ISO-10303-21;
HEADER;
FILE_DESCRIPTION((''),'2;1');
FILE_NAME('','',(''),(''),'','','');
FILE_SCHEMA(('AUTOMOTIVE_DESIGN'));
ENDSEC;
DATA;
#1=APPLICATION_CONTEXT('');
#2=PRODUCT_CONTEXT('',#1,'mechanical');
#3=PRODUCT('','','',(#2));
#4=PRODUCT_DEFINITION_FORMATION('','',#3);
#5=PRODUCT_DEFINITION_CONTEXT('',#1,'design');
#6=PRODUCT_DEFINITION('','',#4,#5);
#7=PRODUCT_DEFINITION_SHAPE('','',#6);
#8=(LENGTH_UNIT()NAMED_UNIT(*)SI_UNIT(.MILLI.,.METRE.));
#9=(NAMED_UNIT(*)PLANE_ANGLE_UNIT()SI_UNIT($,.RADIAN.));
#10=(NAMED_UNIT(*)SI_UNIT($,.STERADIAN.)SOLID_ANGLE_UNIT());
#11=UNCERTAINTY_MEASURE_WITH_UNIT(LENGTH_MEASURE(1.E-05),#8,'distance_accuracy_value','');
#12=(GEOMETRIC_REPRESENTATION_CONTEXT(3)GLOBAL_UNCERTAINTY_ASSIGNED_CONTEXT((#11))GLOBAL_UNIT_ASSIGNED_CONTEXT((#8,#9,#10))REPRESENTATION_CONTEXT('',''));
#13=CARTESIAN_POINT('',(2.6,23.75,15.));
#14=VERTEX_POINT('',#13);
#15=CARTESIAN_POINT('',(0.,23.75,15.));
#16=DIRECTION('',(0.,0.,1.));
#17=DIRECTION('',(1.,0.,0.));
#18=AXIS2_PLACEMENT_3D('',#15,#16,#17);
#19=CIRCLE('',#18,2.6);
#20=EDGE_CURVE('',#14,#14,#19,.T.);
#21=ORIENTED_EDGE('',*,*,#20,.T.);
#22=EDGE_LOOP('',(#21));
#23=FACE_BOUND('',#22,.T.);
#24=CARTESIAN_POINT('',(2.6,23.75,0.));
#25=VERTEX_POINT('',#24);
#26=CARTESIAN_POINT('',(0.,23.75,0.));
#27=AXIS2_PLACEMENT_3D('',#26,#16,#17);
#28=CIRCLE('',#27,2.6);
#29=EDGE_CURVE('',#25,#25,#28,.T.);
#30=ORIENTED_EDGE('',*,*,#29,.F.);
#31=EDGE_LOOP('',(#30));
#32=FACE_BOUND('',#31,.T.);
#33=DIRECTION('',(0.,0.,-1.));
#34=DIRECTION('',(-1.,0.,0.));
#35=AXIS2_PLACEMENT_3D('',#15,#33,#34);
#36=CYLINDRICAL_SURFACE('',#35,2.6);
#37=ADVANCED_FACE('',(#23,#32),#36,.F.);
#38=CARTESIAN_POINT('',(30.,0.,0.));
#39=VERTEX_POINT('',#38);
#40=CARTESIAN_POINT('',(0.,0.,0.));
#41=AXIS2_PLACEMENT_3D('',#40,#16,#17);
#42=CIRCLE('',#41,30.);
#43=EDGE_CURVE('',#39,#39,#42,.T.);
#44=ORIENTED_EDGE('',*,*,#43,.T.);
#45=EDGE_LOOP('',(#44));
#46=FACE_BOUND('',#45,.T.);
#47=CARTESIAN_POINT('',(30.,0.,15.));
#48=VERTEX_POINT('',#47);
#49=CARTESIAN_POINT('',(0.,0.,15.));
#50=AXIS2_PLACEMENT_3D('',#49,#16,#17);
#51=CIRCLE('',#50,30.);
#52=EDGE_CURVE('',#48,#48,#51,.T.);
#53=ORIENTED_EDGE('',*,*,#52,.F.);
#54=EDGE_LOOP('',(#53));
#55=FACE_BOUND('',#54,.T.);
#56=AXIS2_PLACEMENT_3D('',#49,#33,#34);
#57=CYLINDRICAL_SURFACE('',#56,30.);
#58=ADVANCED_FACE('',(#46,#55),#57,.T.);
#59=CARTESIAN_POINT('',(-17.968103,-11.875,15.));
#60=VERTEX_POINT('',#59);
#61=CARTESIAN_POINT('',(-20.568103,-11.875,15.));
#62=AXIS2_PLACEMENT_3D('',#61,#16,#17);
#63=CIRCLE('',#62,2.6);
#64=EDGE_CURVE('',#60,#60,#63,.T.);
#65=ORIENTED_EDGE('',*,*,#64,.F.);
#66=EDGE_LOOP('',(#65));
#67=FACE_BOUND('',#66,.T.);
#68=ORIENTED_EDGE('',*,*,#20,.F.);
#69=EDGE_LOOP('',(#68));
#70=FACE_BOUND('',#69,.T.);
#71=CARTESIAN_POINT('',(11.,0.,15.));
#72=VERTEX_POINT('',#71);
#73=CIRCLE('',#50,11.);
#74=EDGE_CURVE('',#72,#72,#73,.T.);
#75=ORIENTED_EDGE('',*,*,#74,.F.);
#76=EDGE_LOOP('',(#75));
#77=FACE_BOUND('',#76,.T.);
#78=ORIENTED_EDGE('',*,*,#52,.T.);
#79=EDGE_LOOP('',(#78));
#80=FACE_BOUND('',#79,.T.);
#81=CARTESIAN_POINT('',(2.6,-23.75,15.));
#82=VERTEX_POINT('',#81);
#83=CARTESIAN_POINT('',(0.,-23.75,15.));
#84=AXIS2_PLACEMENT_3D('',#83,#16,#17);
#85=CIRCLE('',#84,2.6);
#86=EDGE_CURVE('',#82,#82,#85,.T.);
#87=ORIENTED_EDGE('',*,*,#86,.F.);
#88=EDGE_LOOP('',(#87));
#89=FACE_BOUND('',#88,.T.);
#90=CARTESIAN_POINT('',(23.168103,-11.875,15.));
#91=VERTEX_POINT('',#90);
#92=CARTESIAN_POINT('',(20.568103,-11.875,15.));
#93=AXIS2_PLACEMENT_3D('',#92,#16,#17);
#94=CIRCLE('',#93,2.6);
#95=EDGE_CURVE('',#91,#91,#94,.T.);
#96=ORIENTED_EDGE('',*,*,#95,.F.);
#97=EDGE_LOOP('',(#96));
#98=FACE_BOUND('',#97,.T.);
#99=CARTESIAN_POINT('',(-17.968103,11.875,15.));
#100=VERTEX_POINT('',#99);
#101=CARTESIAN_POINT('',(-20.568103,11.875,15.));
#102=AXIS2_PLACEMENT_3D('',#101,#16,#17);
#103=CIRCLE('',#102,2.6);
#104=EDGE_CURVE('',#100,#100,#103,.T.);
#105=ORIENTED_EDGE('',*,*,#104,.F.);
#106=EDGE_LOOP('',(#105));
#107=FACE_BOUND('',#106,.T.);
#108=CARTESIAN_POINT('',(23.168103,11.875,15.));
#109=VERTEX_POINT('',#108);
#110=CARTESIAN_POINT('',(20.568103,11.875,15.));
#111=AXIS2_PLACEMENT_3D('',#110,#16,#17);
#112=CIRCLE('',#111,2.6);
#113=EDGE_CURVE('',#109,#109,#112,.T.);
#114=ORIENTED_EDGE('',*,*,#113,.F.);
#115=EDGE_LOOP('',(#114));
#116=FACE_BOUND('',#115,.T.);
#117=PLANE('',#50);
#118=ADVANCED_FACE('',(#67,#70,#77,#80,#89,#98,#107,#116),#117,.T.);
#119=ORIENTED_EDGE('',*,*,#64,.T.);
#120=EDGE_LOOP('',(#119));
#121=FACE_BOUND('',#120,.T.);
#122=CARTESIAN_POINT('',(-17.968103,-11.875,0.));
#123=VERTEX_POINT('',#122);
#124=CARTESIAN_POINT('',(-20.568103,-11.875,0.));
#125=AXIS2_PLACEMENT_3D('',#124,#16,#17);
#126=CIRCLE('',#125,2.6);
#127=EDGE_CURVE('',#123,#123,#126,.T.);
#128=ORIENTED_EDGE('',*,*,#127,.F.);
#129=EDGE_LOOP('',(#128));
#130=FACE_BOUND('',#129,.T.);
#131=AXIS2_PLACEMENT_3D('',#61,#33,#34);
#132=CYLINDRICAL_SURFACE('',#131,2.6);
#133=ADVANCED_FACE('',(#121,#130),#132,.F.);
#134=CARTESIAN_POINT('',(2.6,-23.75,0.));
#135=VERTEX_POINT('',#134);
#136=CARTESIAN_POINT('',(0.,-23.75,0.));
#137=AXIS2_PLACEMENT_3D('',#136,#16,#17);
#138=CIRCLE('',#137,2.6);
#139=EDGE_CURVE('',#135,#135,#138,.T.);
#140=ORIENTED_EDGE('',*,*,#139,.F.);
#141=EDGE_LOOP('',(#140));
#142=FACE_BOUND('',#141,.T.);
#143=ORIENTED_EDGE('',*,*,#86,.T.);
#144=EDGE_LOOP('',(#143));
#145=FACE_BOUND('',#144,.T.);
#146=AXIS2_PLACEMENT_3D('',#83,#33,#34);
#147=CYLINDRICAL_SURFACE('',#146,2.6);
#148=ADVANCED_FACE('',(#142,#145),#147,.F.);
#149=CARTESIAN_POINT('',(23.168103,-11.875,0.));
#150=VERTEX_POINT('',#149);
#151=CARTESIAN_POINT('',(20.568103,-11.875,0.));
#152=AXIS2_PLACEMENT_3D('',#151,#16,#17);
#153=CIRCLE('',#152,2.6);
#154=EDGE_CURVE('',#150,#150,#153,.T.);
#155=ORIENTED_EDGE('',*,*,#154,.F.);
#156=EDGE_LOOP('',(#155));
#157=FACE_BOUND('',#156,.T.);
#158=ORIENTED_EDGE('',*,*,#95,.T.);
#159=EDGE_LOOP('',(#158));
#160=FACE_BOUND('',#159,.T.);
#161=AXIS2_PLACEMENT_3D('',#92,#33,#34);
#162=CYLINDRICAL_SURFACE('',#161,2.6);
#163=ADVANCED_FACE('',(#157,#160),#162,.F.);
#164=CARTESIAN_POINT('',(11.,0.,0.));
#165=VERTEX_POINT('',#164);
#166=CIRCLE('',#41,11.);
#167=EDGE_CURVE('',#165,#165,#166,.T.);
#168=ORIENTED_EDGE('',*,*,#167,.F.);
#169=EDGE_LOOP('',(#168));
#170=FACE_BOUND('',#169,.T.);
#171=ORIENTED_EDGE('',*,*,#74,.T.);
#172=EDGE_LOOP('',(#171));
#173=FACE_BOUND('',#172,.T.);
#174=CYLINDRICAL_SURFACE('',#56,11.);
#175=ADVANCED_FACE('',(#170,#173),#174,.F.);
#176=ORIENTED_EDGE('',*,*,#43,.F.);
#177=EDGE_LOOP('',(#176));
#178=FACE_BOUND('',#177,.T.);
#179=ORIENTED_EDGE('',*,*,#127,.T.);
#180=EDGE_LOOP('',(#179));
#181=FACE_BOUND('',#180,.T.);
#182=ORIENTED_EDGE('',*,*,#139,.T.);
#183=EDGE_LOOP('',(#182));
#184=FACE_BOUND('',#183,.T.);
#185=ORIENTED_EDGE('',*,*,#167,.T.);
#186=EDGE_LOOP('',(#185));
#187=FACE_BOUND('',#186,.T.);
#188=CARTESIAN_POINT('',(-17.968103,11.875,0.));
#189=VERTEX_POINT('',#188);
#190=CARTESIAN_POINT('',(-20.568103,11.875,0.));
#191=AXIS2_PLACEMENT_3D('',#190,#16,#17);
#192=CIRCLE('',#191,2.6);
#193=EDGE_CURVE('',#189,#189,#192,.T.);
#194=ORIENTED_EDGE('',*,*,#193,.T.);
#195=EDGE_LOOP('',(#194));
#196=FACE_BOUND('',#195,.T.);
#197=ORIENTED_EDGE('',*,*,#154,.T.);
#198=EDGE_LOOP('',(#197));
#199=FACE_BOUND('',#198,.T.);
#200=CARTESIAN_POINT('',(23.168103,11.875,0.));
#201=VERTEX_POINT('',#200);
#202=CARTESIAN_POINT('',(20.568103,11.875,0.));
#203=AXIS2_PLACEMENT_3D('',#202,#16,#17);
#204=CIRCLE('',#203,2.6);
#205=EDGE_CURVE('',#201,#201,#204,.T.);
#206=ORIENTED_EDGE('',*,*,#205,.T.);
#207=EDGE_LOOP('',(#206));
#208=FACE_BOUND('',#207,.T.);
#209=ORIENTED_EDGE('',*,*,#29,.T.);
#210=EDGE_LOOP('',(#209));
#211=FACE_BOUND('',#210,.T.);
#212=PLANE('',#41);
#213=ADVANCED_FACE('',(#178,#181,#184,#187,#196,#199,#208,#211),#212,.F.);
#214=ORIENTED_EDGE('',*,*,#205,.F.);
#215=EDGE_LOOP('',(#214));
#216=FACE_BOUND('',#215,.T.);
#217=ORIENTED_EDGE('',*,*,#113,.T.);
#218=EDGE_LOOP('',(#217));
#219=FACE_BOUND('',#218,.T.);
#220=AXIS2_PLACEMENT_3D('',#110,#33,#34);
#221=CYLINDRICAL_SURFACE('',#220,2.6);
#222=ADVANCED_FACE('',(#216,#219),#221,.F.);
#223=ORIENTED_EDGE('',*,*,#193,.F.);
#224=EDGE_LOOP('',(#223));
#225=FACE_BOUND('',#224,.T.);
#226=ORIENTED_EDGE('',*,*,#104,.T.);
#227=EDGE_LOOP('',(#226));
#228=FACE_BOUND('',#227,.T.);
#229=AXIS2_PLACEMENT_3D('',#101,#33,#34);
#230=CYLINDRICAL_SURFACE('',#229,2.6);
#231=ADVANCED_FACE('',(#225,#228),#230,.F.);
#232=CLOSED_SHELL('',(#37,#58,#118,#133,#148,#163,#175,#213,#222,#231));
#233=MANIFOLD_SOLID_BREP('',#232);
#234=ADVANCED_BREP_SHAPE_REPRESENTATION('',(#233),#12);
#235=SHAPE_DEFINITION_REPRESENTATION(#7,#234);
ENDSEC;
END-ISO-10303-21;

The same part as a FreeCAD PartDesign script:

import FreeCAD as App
import Part
import Sketcher
Q = App.Units.Quantity

doc = App.newDocument("Part")
params = doc.addObject("Spreadsheet::Sheet", "Params")
for row, (alias, value) in enumerate([
    ("sketch1_diameter", "60 mm"),
    ("sketch1_diameter2", "22 mm"),
    ("sketch1_diameter3", "5.2 mm"),
    ("pad1_length", "15 mm"),
], start=1):
    params.set(f"A{row}", alias)
    params.set(f"B{row}", "=" + value)
    params.setAlias(f"B{row}", alias)

body = doc.addObject("PartDesign::Body", "Body")

sketch1 = body.newObject("Sketcher::SketchObject", "Sketch")
sketch1.AttachmentSupport = (doc.getObject("XY_Plane"), [""])
sketch1.MapMode = "FlatFace"
sketch1.addGeometry(Part.Circle(App.Vector(0, 0, 0), App.Vector(0, 0, 1), 30), False)
sketch1.addGeometry(Part.Circle(App.Vector(-20.568103, -11.875, 0), App.Vector(0, 0, 1), 2.6), False)
sketch1.addGeometry(Part.Circle(App.Vector(0, -23.75, 0), App.Vector(0, 0, 1), 2.6), False)
sketch1.addGeometry(Part.Circle(App.Vector(20.568103, -11.875, 0), App.Vector(0, 0, 1), 2.6), False)
sketch1.addGeometry(Part.Circle(App.Vector(-20.568103, 11.875, 0), App.Vector(0, 0, 1), 2.6), False)
sketch1.addGeometry(Part.Circle(App.Vector(0, 0, 0), App.Vector(0, 0, 1), 11), False)
sketch1.addGeometry(Part.Circle(App.Vector(20.568103, 11.875, 0), App.Vector(0, 0, 1), 2.6), False)
sketch1.addGeometry(Part.Circle(App.Vector(0, 23.75, 0), App.Vector(0, 0, 1), 2.6), False)
sketch1.addConstraint(Sketcher.Constraint("Coincident", 0, 3, -1, 1))
sketch1.addConstraint(Sketcher.Constraint("Coincident", 5, 3, -1, 1))
sketch1.addConstraint(Sketcher.Constraint("Equal", 1, 2))
sketch1.addConstraint(Sketcher.Constraint("Equal", 2, 3))
sketch1.addConstraint(Sketcher.Constraint("Equal", 3, 4))
sketch1.addConstraint(Sketcher.Constraint("Equal", 4, 6))
sketch1.addConstraint(Sketcher.Constraint("Equal", 6, 7))
sketch1.addConstraint(Sketcher.Constraint("Symmetric", 3, 3, 4, 3, -1, 1))
sketch1.addConstraint(Sketcher.Constraint("Symmetric", 1, 3, 6, 3, -1, 1))
sketch1.addConstraint(Sketcher.Constraint("Symmetric", 2, 3, 7, 3, -1, 1))
sketch1.addConstraint(Sketcher.Constraint("Symmetric", 1, 3, 3, 3, -2))
sketch1.addConstraint(Sketcher.Constraint("PointOnObject", 2, 3, -2))
sketch1.addConstraint(Sketcher.Constraint("Diameter", 0, Q("60 mm")))
sketch1.addConstraint(Sketcher.Constraint("Diameter", 5, Q("22 mm")))
sketch1.addConstraint(Sketcher.Constraint("Diameter", 1, Q("5.2 mm")))
sketch1.addConstraint(Sketcher.Constraint("DistanceY", 2, 3, -1, 1, Q("23.75 mm")))
sketch1.addConstraint(Sketcher.Constraint("DistanceY", 1, 3, 4, 3, Q("23.75 mm")))
sketch1.addConstraint(Sketcher.Constraint("DistanceX", 1, 3, -1, 1, Q("20.568103 mm")))
sketch1.setExpression("Constraints[12]", "Params.sketch1_diameter")
sketch1.setExpression("Constraints[13]", "Params.sketch1_diameter2")
sketch1.setExpression("Constraints[14]", "Params.sketch1_diameter3")
pad1 = body.newObject("PartDesign::Pad", "Pad")
pad1.Profile = sketch1
pad1.setExpression("Length", "Params.pad1_length")

doc.recompute()
